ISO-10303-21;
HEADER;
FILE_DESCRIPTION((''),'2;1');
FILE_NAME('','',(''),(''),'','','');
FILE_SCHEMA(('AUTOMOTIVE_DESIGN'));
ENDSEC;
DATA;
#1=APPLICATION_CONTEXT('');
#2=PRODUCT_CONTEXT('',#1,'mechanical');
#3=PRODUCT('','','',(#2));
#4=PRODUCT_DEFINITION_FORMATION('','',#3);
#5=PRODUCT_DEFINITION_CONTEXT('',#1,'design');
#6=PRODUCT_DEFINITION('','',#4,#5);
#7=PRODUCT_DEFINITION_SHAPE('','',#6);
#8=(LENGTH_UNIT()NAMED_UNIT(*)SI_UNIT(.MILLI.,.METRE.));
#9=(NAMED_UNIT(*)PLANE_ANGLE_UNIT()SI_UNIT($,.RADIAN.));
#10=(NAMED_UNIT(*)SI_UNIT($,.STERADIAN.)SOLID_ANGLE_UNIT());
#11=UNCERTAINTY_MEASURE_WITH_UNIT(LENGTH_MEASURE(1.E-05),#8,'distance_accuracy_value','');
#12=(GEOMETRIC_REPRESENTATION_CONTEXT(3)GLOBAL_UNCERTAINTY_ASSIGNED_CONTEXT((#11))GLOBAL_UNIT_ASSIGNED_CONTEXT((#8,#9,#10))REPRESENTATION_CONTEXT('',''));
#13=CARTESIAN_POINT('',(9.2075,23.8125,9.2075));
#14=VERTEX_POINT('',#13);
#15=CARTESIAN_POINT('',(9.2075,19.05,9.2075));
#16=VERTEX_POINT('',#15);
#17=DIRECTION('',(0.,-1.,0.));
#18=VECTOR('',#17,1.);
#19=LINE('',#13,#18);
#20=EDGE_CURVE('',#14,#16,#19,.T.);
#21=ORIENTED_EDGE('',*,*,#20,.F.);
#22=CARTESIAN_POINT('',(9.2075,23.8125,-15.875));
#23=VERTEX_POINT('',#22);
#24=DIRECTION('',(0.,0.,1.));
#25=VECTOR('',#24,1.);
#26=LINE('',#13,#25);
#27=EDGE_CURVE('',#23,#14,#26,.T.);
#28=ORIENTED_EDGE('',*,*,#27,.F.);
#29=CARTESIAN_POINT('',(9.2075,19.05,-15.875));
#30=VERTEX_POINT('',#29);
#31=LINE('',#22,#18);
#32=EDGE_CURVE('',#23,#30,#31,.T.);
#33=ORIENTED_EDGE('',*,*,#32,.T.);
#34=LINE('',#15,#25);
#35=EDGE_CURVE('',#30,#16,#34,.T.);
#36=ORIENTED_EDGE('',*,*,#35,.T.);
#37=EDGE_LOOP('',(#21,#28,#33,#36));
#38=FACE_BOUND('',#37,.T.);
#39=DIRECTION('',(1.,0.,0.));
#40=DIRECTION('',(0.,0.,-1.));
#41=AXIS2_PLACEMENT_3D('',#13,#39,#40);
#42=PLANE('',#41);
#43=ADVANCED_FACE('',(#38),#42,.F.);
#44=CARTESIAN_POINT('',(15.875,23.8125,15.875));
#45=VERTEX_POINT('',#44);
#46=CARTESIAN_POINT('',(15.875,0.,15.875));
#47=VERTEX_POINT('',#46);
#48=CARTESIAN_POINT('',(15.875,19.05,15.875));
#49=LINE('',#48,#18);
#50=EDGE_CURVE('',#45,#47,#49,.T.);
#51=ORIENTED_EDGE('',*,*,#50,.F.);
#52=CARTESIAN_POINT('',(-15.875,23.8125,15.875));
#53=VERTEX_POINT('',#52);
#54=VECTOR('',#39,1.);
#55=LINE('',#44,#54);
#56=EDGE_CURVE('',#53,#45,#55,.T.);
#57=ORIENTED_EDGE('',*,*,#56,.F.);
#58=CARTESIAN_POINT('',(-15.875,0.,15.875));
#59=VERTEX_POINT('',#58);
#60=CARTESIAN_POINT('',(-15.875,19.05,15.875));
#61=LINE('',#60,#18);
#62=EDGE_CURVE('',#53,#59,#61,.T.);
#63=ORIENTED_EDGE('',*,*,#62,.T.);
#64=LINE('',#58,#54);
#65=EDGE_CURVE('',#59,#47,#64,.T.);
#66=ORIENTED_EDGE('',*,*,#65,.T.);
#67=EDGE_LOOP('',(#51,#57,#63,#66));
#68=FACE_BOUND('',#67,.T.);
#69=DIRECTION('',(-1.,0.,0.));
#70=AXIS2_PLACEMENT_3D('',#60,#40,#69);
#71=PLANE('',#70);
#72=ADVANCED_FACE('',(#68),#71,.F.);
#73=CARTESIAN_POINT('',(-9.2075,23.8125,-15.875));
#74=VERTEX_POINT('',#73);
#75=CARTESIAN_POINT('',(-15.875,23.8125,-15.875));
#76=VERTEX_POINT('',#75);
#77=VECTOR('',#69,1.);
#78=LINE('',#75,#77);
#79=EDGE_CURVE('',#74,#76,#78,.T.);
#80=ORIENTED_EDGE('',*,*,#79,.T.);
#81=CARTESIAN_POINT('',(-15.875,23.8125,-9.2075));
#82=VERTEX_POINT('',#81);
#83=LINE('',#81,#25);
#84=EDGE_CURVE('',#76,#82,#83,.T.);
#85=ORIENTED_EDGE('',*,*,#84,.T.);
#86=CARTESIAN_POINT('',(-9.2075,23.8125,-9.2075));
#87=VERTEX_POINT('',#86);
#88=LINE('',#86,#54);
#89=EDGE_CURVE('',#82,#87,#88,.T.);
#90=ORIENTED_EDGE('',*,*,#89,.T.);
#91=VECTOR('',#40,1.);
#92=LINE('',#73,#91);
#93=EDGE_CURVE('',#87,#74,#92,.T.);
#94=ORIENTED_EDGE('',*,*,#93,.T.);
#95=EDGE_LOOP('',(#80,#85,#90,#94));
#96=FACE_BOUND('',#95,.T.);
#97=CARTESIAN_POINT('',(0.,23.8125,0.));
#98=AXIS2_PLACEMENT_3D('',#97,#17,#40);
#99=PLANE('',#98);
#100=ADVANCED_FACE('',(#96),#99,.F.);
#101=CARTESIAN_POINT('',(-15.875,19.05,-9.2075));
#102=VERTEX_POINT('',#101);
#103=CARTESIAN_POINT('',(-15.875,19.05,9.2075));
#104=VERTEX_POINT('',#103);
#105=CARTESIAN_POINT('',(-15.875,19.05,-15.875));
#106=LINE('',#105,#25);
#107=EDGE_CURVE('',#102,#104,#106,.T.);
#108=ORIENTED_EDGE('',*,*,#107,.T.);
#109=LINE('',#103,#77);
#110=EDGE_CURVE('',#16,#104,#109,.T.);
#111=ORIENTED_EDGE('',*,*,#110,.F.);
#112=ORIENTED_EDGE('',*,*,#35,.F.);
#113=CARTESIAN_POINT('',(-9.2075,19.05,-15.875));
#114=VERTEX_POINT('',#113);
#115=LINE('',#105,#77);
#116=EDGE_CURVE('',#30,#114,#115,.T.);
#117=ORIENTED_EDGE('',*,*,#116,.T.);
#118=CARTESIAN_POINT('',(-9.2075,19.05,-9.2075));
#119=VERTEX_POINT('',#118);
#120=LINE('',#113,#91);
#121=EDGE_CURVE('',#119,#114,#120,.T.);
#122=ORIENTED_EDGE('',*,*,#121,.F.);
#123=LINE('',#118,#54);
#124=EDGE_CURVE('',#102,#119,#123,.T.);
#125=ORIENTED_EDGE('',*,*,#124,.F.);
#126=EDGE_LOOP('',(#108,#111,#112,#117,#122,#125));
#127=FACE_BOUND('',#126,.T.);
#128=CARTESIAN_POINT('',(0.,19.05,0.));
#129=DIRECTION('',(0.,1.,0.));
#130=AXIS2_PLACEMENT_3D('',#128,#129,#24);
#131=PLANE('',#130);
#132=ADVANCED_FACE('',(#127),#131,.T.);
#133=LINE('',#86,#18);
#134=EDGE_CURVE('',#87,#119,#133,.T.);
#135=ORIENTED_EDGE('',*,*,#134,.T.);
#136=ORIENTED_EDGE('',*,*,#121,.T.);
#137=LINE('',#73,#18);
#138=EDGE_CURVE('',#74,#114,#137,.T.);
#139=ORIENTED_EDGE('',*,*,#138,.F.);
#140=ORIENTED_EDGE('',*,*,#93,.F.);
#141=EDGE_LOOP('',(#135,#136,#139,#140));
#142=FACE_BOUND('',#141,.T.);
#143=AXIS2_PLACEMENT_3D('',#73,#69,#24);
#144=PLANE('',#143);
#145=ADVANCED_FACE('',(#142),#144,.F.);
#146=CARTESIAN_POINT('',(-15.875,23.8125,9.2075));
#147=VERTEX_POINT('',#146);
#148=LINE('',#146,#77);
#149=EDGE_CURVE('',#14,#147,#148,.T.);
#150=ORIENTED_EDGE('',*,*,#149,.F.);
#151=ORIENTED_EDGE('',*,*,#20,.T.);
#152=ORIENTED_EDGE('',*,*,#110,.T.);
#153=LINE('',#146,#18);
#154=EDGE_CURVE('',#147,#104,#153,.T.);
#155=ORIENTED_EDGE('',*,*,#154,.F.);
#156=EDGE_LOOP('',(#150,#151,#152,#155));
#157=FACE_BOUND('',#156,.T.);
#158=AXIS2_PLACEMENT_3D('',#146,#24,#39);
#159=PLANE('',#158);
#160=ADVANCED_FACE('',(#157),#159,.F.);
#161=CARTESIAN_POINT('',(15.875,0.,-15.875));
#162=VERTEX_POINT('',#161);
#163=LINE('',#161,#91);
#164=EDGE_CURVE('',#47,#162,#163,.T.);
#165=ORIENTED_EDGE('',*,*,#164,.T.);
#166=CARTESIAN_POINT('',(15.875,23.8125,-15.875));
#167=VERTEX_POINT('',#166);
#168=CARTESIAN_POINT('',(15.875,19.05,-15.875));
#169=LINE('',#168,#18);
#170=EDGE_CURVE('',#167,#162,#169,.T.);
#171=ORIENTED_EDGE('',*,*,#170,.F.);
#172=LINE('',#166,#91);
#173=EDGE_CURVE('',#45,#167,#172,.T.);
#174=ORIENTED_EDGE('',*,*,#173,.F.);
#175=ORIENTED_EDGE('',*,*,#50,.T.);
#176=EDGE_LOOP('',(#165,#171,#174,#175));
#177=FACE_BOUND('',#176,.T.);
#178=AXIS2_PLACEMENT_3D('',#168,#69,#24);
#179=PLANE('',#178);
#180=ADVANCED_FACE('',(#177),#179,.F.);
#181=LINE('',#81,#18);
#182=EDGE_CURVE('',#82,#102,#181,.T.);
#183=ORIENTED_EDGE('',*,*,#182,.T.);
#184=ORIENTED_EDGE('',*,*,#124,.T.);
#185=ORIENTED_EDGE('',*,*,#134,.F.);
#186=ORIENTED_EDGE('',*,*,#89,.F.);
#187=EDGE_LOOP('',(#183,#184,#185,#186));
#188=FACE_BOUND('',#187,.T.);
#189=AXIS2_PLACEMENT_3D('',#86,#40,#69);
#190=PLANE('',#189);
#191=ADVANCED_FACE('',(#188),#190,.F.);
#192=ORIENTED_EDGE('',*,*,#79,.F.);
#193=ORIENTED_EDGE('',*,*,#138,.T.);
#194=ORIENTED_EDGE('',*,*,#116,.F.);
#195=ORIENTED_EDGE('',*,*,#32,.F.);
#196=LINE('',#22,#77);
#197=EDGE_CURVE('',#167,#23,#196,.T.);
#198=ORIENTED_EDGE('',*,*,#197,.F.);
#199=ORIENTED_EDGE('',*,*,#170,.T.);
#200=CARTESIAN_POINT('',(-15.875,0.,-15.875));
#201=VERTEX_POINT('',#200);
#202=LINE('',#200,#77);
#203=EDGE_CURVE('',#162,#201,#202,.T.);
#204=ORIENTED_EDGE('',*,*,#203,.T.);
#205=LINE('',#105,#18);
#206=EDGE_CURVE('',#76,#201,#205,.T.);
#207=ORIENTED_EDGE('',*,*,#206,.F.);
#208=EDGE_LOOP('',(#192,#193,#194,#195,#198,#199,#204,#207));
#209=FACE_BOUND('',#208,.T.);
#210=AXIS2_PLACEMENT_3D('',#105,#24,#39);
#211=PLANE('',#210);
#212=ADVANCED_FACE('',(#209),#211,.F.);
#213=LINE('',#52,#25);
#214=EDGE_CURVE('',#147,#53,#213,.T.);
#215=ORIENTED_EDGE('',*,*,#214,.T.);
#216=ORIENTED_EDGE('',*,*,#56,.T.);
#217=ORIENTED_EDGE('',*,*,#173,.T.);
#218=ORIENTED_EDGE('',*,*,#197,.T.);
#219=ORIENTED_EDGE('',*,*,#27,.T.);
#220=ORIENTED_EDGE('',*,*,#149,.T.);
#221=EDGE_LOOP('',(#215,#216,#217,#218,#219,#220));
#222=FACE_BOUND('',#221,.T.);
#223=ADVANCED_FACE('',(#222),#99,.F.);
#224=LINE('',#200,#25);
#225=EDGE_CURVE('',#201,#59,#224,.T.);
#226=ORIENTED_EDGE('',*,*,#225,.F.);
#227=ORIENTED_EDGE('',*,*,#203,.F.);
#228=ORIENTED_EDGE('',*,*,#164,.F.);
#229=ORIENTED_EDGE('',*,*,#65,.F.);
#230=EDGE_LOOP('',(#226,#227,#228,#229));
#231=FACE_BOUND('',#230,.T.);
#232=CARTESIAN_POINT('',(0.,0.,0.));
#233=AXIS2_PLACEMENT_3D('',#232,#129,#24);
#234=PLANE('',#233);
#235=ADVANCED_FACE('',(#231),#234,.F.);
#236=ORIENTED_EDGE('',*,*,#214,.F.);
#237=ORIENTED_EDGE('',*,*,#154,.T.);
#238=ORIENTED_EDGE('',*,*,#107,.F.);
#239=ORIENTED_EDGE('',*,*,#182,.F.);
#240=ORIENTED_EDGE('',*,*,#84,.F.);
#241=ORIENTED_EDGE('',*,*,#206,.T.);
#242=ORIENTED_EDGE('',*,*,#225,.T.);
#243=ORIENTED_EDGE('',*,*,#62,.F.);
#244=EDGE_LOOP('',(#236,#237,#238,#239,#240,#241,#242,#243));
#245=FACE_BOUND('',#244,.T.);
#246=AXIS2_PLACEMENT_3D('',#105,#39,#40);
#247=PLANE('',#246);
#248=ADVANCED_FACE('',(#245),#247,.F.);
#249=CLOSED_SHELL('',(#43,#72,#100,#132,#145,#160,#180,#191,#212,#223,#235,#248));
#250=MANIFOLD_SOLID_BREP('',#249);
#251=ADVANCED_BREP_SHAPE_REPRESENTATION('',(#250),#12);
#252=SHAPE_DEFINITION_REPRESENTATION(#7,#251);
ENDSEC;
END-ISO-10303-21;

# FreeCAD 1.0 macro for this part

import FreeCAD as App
import Part
import Sketcher
Q = App.Units.Quantity

doc = App.newDocument("Part")
body = doc.addObject("PartDesign::Body", "Body")

# Sketch on XZ plane
sketch1 = body.newObject("Sketcher::SketchObject", "Sketch")
sketch1.AttachmentSupport = (doc.getObject("XZ_Plane"), [""])
sketch1.MapMode = "FlatFace"
sketch1.addGeometry([
    Part.LineSegment(App.Vector(-16, -16, 0), App.Vector(-16, 16, 0)),
    Part.LineSegment(App.Vector(-16, 16, 0), App.Vector(16, 16, 0)),
    Part.LineSegment(App.Vector(16, 16, 0), App.Vector(16, -16, 0)),
    Part.LineSegment(App.Vector(16, -16, 0), App.Vector(-16, -16, 0)),
], False)
sketch1.addConstraint([
    Sketcher.Constraint("Coincident", 0, 2, 1, 1),
    Sketcher.Constraint("Coincident", 1, 2, 2, 1),
    Sketcher.Constraint("Coincident", 2, 2, 3, 1),
    Sketcher.Constraint("Coincident", 3, 2, 0, 1),
    Sketcher.Constraint("Vertical", 0),
    Sketcher.Constraint("Horizontal", 1),
    Sketcher.Constraint("Vertical", 2),
    Sketcher.Constraint("Horizontal", 3),
    Sketcher.Constraint("Symmetric", 0, 2, 2, 2, -1, 1),
    Sketcher.Constraint("Equal", 3, 0),
    Sketcher.Constraint("DistanceX", 1, 1, 1, 2, Q("1.25 in")),
])
pad1 = body.newObject("PartDesign::Pad", "Pad")
pad1.Profile = sketch1
pad1.Length = Q("0.75 in")
pad1.Reversed = True

# Sketch on XZ plane
sketch2 = body.newObject("Sketcher::SketchObject", "Sketch001")
sketch2.AttachmentSupport = (doc.getObject("XZ_Plane"), [""])
sketch2.MapMode = "FlatFace"
sketch2.AttachmentOffset = App.Placement(App.Vector(0, 0, -0.75 * 25.4), App.Rotation())
sketch2.addGeometry([
    Part.LineSegment(App.Vector(-16, -16, 0), App.Vector(-16, -9, 0)),  # 0
    Part.LineSegment(App.Vector(-16, -9, 0), App.Vector(-9, -9, 0)),  # 1
    Part.LineSegment(App.Vector(-9, -9, 0), App.Vector(-9, -16, 0)),  # 2
    Part.LineSegment(App.Vector(-9, -16, 0), App.Vector(-16, -16, 0)),  # 3
    Part.LineSegment(App.Vector(9, 9, 0), App.Vector(-16, 9, 0)),  # 4
    Part.LineSegment(App.Vector(-16, 9, 0), App.Vector(-16, 16, 0)),  # 5
    Part.LineSegment(App.Vector(-16, 16, 0), App.Vector(16, 16, 0)),  # 6
    Part.LineSegment(App.Vector(16, 16, 0), App.Vector(16, -16, 0)),  # 7
    Part.LineSegment(App.Vector(16, -16, 0), App.Vector(9, -16, 0)),  # 8
    Part.LineSegment(App.Vector(9, -16, 0), App.Vector(9, 9, 0)),  # 9
], False)
sketch2.addConstraint([
    Sketcher.Constraint("Coincident", 0, 2, 1, 1),
    Sketcher.Constraint("Coincident", 1, 2, 2, 1),
    Sketcher.Constraint("Coincident", 2, 2, 3, 1),
    Sketcher.Constraint("Coincident", 3, 2, 0, 1),
    Sketcher.Constraint("Coincident", 4, 2, 5, 1),
    Sketcher.Constraint("Coincident", 5, 2, 6, 1),
    Sketcher.Constraint("Coincident", 6, 2, 7, 1),
    Sketcher.Constraint("Coincident", 7, 2, 8, 1),
    Sketcher.Constraint("Coincident", 8, 2, 9, 1),
    Sketcher.Constraint("Coincident", 9, 2, 4, 1),
    Sketcher.Constraint("Vertical", 0),
    Sketcher.Constraint("Horizontal", 1),
    Sketcher.Constraint("Vertical", 2),
    Sketcher.Constraint("Horizontal", 3),
    Sketcher.Constraint("Horizontal", 4),
    Sketcher.Constraint("Vertical", 5),
    Sketcher.Constraint("Horizontal", 6),
    Sketcher.Constraint("Vertical", 7),
    Sketcher.Constraint("Horizontal", 8),
    Sketcher.Constraint("Vertical", 9),
    Sketcher.Constraint("Symmetric", 3, 2, 6, 2, -1, 1),
    Sketcher.Constraint("Symmetric", 5, 2, 7, 2, -1, 1),
    Sketcher.Constraint("Symmetric", 1, 2, 9, 2, -1, 1),
    Sketcher.Constraint("Equal", 8, 0),
    Sketcher.Constraint("Equal", 6, 7),
    Sketcher.Constraint("DistanceX", 6, 1, 6, 2, Q("1.25 in")),
    Sketcher.Constraint("DistanceX", 1, 1, 1, 2, Q("0.2625 in")),
])
pad2 = body.newObject("PartDesign::Pad", "Pad001")
pad2.Profile = sketch2
pad2.Length = Q("0.1875 in")
pad2.Reversed = True

doc.recompute()
